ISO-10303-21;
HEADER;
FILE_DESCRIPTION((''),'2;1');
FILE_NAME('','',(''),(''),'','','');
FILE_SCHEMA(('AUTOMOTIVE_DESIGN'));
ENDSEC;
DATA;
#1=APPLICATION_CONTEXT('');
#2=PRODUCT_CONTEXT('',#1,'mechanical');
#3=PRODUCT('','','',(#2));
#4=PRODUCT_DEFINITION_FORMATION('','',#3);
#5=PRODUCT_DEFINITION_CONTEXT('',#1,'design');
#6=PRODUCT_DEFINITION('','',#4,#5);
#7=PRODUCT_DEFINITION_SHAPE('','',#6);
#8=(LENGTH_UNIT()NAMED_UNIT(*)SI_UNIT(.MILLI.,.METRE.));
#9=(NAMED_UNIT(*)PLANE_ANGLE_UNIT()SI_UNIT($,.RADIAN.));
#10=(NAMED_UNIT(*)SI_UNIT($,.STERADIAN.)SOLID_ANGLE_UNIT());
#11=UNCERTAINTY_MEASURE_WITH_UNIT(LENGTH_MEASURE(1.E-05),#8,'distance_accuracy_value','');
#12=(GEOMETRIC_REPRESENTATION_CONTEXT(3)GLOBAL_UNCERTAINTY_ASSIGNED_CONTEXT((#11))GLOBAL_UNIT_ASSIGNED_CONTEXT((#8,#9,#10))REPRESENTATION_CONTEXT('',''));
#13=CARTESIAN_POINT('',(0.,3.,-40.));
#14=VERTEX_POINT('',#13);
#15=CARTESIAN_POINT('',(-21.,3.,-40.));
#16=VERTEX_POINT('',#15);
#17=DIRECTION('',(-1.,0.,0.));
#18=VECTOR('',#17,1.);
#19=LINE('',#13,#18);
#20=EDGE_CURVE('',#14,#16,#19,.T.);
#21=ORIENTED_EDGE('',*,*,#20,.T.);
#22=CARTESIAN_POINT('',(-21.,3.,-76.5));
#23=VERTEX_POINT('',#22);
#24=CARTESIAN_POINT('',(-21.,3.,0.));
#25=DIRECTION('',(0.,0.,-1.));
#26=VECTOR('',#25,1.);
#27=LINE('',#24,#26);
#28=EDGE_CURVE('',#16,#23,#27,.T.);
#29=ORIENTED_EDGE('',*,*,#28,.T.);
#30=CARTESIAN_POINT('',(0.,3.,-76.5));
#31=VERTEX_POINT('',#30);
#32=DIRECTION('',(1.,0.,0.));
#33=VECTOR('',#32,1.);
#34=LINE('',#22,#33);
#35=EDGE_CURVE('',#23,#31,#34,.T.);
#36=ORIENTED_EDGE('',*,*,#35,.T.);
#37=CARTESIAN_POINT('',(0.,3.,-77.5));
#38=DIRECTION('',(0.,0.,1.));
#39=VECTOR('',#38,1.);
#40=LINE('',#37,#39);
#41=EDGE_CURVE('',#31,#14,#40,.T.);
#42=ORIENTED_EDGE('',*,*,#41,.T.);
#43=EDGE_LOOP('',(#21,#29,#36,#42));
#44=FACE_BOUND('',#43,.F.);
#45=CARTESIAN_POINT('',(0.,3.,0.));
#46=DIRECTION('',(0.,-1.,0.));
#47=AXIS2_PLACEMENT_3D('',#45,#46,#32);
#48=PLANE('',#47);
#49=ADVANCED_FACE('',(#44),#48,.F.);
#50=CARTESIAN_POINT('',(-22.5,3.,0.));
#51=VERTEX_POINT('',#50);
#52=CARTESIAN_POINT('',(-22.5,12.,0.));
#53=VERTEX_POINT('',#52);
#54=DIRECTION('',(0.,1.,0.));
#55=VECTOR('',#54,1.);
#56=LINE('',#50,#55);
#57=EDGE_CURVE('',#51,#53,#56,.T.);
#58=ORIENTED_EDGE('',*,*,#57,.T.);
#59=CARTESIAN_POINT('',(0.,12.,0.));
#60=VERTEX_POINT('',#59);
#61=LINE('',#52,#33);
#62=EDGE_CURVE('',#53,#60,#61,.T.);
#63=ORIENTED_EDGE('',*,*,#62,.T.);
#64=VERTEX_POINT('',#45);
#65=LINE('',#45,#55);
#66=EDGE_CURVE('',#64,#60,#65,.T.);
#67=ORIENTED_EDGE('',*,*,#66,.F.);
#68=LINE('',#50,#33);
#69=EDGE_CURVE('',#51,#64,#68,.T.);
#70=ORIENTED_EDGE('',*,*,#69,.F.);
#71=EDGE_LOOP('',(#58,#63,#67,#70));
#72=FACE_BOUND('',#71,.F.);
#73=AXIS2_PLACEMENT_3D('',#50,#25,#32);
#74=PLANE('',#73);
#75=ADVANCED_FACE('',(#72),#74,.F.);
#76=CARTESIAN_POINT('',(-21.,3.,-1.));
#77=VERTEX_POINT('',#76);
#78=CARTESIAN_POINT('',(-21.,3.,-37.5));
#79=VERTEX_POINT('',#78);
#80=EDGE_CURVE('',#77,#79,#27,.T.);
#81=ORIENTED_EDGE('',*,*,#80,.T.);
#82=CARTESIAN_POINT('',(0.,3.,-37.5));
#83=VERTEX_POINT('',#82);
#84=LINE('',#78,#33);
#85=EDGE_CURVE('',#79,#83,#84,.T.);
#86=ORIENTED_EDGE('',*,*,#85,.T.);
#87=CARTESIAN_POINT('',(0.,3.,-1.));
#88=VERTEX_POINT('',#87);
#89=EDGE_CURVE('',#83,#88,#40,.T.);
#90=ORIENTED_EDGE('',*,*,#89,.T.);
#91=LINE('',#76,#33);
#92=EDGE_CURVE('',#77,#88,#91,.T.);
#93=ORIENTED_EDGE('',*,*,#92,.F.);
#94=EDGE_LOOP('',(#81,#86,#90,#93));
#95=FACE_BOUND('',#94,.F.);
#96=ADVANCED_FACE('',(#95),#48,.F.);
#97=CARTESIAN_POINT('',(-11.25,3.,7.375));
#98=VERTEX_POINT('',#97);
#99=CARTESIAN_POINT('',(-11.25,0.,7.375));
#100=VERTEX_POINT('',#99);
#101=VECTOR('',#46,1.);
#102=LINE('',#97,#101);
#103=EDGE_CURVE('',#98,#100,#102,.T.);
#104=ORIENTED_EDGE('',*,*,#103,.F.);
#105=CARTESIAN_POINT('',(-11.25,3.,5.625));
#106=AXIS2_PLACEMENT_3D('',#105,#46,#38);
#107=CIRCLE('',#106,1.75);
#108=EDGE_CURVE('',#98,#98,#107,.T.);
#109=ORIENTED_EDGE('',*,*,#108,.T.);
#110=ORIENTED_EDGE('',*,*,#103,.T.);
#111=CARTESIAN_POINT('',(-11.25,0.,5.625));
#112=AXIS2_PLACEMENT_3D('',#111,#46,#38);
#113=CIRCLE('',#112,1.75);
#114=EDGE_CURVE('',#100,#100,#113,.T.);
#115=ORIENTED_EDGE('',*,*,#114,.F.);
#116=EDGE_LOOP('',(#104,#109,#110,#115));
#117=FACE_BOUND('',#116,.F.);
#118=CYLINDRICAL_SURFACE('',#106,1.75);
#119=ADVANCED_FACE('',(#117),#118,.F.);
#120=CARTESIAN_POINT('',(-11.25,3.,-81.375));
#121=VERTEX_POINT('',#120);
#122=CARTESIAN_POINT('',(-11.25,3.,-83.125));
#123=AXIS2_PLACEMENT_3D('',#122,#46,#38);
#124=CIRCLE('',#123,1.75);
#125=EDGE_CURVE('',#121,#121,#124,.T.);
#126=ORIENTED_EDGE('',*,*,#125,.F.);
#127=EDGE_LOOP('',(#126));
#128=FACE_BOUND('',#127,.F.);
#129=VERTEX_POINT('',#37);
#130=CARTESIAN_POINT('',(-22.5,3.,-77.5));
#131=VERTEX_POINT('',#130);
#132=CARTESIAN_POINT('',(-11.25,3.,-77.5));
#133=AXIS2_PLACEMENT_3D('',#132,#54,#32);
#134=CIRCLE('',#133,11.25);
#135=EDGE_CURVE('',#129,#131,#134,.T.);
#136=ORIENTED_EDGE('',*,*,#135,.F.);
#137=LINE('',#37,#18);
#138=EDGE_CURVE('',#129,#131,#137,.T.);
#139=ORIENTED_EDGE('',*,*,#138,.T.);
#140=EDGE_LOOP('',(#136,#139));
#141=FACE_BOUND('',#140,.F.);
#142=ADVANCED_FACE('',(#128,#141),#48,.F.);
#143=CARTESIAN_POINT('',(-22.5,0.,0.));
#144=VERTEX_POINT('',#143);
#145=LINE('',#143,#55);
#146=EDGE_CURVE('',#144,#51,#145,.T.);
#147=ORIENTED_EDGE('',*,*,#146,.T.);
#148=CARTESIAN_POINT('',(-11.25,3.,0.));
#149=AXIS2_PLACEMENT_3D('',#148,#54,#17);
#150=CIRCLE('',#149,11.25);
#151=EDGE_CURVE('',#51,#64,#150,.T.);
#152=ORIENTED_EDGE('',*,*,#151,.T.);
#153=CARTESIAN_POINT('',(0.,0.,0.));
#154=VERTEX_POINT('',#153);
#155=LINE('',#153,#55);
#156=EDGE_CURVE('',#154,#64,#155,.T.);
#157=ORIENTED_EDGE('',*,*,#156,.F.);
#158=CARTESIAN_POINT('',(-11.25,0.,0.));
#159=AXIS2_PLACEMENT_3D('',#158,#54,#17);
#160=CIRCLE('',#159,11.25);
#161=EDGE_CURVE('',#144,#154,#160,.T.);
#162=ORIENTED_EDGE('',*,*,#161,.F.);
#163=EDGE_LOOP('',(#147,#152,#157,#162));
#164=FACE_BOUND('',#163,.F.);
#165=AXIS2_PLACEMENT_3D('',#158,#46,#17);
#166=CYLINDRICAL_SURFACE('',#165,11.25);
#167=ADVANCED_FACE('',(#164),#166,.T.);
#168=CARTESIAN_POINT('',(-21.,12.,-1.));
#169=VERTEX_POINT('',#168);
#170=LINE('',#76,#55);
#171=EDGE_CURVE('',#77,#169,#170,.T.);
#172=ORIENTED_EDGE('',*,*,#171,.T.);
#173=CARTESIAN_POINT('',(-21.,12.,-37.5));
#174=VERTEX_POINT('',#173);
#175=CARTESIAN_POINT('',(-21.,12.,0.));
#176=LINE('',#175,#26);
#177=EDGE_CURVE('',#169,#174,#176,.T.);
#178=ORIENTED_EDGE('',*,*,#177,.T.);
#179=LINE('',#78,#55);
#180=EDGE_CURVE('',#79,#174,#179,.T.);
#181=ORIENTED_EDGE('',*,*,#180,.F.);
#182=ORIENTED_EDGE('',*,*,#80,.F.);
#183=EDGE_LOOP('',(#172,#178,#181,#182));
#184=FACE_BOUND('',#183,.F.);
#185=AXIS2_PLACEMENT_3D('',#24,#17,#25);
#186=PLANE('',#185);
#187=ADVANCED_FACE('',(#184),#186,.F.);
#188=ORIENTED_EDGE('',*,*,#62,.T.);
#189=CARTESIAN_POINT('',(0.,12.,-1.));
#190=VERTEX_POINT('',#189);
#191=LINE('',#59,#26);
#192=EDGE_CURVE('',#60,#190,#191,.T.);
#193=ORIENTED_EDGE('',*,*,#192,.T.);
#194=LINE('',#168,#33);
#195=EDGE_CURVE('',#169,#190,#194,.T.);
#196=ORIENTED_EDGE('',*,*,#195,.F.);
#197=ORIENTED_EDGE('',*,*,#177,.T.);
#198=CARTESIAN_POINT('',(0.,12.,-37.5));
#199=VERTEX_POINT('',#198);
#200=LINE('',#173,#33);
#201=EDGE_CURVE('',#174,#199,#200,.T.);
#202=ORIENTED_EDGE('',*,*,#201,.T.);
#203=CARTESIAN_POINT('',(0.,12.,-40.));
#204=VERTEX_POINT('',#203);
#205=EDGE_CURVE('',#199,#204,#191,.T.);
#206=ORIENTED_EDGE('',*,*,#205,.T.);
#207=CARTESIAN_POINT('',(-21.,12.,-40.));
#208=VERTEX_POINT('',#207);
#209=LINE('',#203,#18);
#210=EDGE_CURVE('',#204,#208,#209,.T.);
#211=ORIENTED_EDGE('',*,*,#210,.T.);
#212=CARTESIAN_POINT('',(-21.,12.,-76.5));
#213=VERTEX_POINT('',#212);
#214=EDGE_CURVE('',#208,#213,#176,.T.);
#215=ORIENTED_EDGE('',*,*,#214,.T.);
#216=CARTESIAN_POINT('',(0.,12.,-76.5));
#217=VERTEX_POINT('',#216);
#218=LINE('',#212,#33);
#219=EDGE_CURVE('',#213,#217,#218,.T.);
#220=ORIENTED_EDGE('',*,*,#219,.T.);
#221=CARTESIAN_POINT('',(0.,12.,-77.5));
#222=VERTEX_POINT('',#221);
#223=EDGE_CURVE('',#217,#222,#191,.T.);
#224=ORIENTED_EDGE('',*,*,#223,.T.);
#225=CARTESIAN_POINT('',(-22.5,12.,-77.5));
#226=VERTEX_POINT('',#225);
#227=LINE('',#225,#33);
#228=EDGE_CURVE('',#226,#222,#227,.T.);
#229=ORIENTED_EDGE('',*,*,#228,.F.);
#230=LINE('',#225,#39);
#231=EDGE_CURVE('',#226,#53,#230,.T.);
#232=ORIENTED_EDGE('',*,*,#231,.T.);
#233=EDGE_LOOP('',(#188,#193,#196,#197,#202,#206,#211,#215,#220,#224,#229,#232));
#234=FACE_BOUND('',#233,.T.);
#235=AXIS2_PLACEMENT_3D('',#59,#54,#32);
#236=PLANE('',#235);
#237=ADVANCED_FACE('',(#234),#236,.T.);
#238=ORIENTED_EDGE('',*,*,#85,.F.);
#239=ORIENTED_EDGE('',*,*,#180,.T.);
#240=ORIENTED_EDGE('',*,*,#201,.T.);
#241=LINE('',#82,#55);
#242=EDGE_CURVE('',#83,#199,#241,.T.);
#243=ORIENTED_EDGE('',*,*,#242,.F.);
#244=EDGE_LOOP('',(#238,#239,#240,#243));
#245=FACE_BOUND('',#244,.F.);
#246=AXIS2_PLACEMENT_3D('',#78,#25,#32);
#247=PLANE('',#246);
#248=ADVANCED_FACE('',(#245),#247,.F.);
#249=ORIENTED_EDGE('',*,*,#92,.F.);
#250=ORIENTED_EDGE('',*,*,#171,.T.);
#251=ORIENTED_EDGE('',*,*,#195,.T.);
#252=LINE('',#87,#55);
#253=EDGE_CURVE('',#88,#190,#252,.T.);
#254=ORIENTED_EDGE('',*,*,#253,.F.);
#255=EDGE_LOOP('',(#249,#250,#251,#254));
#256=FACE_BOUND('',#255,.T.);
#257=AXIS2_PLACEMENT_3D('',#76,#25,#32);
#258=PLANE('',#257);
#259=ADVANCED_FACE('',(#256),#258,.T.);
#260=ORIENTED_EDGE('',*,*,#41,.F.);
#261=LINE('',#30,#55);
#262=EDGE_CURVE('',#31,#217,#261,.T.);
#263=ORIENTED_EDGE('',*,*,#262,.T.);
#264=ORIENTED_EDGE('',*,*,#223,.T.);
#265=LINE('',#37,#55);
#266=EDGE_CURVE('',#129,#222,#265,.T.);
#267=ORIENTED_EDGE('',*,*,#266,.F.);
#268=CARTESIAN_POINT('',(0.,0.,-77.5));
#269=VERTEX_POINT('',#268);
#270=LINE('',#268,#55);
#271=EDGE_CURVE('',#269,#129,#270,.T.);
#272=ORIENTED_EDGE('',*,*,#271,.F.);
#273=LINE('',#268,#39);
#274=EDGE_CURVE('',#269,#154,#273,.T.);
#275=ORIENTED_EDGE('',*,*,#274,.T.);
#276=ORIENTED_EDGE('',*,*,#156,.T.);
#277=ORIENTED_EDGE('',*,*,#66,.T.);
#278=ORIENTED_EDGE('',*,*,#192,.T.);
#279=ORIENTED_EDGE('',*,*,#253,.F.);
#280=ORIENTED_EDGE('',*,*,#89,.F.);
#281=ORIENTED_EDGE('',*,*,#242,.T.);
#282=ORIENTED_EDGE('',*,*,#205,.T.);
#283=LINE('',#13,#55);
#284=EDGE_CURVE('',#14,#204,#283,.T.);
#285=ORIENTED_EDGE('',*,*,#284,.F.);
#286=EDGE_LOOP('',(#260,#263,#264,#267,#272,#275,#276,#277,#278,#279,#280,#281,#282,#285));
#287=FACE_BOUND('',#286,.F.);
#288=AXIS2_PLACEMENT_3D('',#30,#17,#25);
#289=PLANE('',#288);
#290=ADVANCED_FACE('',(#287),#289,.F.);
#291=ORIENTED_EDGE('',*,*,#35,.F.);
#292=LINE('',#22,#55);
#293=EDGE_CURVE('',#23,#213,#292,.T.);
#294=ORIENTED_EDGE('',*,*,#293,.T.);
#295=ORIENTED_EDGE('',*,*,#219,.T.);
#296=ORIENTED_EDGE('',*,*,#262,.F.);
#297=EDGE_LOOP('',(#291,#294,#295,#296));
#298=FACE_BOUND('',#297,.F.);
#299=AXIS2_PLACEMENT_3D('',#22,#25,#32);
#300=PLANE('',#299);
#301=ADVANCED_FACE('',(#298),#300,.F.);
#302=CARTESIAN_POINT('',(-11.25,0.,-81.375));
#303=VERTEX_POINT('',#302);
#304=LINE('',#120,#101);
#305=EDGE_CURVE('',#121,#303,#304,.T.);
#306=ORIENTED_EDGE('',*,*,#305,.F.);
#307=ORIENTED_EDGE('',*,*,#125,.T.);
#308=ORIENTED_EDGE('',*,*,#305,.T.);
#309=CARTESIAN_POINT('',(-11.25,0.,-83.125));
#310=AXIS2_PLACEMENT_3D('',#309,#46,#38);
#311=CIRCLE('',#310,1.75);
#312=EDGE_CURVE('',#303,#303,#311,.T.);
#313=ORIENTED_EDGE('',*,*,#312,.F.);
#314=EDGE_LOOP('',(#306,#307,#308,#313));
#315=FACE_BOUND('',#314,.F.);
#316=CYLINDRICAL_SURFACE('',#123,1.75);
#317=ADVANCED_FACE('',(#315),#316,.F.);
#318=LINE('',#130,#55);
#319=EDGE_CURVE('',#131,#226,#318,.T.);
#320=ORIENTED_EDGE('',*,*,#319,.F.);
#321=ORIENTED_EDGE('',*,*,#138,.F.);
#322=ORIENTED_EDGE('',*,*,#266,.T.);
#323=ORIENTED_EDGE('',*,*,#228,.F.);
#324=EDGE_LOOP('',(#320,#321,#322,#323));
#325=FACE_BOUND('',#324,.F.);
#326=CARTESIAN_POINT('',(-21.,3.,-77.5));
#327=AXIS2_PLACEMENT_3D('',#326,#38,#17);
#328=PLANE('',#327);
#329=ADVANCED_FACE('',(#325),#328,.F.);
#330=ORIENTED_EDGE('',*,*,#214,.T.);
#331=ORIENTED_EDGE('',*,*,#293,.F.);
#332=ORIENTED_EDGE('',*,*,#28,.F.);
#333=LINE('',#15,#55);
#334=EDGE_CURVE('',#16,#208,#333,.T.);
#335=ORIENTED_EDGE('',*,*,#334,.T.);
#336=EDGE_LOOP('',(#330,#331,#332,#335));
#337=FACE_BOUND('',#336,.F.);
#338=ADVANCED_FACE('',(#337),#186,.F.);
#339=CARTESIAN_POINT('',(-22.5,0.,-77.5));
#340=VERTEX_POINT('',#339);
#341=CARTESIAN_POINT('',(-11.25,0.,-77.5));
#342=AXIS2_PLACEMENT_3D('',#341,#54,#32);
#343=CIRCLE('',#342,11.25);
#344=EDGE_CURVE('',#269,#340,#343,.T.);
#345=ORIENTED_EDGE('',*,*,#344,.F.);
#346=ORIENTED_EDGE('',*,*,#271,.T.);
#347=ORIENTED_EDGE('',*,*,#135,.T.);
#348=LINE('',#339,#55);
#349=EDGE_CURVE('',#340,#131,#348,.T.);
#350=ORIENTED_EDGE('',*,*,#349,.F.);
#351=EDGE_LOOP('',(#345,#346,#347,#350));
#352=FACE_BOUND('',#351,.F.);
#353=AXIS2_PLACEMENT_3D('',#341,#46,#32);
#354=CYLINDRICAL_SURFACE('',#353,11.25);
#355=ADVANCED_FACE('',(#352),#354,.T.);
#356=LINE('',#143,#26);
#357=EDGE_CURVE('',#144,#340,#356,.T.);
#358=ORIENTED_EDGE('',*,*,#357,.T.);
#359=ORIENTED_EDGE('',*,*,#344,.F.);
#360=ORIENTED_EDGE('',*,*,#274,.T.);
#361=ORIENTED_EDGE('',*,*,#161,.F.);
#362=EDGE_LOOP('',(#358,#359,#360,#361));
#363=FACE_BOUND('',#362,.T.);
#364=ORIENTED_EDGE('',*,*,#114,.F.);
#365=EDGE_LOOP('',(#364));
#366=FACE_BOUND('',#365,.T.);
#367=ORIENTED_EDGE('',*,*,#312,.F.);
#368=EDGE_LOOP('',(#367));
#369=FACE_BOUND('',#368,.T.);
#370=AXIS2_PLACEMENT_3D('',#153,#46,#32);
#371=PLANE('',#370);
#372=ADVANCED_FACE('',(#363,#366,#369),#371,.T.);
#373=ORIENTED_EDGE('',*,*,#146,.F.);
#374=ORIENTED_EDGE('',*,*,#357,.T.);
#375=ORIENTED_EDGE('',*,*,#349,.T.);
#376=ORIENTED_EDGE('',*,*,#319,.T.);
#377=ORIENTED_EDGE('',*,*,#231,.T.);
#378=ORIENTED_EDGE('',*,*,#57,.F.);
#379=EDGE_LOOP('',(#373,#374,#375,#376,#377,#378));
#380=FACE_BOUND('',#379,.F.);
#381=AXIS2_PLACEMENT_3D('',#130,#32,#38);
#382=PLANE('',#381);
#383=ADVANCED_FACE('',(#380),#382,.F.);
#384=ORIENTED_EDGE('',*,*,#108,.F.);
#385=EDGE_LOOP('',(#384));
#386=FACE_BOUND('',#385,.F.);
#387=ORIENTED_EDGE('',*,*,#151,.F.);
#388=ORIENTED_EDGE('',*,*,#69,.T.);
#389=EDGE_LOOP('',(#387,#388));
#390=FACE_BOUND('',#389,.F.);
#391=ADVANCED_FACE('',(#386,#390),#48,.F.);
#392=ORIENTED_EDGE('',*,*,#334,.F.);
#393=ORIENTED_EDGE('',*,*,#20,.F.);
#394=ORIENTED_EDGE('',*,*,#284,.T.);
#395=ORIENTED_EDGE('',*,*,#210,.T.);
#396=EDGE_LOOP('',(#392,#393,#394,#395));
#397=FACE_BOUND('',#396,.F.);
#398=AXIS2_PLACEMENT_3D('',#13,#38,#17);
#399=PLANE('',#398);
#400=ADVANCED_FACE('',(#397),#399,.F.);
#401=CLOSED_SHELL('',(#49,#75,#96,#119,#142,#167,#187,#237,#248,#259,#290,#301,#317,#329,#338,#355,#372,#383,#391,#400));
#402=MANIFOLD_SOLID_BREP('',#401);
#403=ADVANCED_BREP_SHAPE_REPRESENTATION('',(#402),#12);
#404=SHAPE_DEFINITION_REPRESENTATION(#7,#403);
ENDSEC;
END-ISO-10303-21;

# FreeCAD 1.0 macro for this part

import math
import FreeCAD as App
import Part
import Sketcher
from FreeCAD import Vector


def add_polygon(sketch, points):
    """Adds a closed chain of lines whose ends are joined by coincident constraints."""
    first, n = sketch.GeometryCount, len(points)
    for a, b in zip(points, points[1:] + points[:1]):
        sketch.addGeometry(Part.LineSegment(App.Vector(*a, 0), App.Vector(*b, 0)), False)
    for i in range(n):
        sketch.addConstraint(Sketcher.Constraint("Coincident", first + i, 2, first + (i + 1) % n, 1))

doc = App.newDocument("Part")
body = doc.addObject("PartDesign::Body", "Body")
body.AllowCompound = True

# Sketch on XZ plane
sketch1 = body.newObject("Sketcher::SketchObject", "Sketch")
sketch1.AttachmentSupport = (doc.getObject("XZ_Plane"), [""])
sketch1.MapMode = "FlatFace"
sketch1.addGeometry([
    Part.ArcOfCircle(Part.Circle(Vector(-11, 0, 0), Vector(0, 0, 1), 11), math.radians(0), math.radians(180)),
    Part.LineSegment(Vector(0, 0, 0), Vector(-22, 0, 0)),
    Part.LineSegment(Vector(-22, -78, 0), Vector(0, -78, 0)),
    Part.ArcOfCircle(Part.Circle(Vector(-11, -78, 0), Vector(0, 0, 1), 11), math.radians(180), math.radians(360)),
], False)
sketch1.addConstraint([
    Sketcher.Constraint("Coincident", 0, 1, 1, 1),
    Sketcher.Constraint("Coincident", 1, 2, 0, 2),
    Sketcher.Constraint("Coincident", 2, 1, 3, 1),
    Sketcher.Constraint("Coincident", 3, 2, 2, 2),
    Sketcher.Constraint("Horizontal", 1),
    Sketcher.Constraint("Horizontal", 2),
    Sketcher.Constraint("Coincident", 0, 1, -1, 1),
    Sketcher.Constraint("Equal", 0, 3),
    Sketcher.Constraint("PointOnObject", 0, 3, -1),
    Sketcher.Constraint("PointOnObject", 3, 2, -2),
    Sketcher.Constraint("Horizontal", 3, 3, 2, 1),
    Sketcher.Constraint("Radius", 0, 11.25),
    Sketcher.Constraint("DistanceY", 3, 3, -1, 1, 77.5),
])
pad1 = body.newObject("PartDesign::Pad", "Pad")
pad1.Profile = sketch1
pad1.Length = 3
pad1.Reversed = True

# Sketch on XZ plane
sketch2 = body.newObject("Sketcher::SketchObject", "Sketch001")
sketch2.AttachmentSupport = (doc.getObject("XZ_Plane"), [""])
sketch2.MapMode = "FlatFace"
add_polygon(sketch2, [(0, -78), (0, 0), (-22, 0), (-22, -78)])  # lines 0-3
sketch2.addConstraint([
    Sketcher.Constraint("Vertical", 0),
    Sketcher.Constraint("Horizontal", 1),
    Sketcher.Constraint("Vertical", 2),
    Sketcher.Constraint("Horizontal", 3),
    Sketcher.Constraint("Coincident", 0, 2, -1, 1),
    Sketcher.Constraint("DistanceX", 1, 2, 1, 1, 22.5),
    Sketcher.Constraint("DistanceY", 0, 1, 0, 2, 77.5),
])
pad2 = body.newObject("PartDesign::Pad", "Pad001")
pad2.Profile = sketch2
pad2.Length = 3
pad2.Reversed = True

# Sketch on XZ plane
sketch3 = body.newObject("Sketcher::SketchObject", "Sketch002")
sketch3.AttachmentSupport = (doc.getObject("XZ_Plane"), [""])
sketch3.MapMode = "FlatFace"
sketch3.AttachmentOffset = App.Placement(Vector(0, 0, -3), App.Rotation())
add_polygon(sketch3, [(-21, -77.5), (-22.5, -77.5), (-22.5, 0), (-21, 0)])  # lines 0-3
sketch3.addConstraint([
    Sketcher.Constraint("Horizontal", 0),
    Sketcher.Constraint("Vertical", 1),
    Sketcher.Constraint("Horizontal", 2),
    Sketcher.Constraint("Vertical", 3),
    Sketcher.Constraint("PointOnObject", 1, 2, -1),
    Sketcher.Constraint("DistanceX", 0, 2, 0, 1, 1.5),
    Sketcher.Constraint("DistanceY", 1, 1, 1, 2, 77.5),
    Sketcher.Constraint("DistanceX", 2, 2, -1, 1, 21.0),
])
pad3 = body.newObject("PartDesign::Pad", "Pad002")
pad3.Profile = sketch3
pad3.Length = 9
pad3.Reversed = True

# Sketch on XZ plane
sketch4 = body.newObject("Sketcher::SketchObject", "Sketch003")
sketch4.AttachmentSupport = (doc.getObject("XZ_Plane"), [""])
sketch4.MapMode = "FlatFace"
sketch4.AttachmentOffset = App.Placement(Vector(0, 0, -3), App.Rotation())
add_polygon(sketch4, [(-21, 0), (0, 0), (0, -1), (-21, -1)])  # lines 0-3
add_polygon(sketch4, [(-21, -37.5), (0, -37.5), (0, -40), (-21, -40)])  # lines 4-7
add_polygon(sketch4, [(-21, -76.5), (0, -76.5), (0, -77.5), (-21, -77.5)])  # lines 8-11
sketch4.addConstraint([
    Sketcher.Constraint("Horizontal", 0),
    Sketcher.Constraint("Vertical", 1),
    Sketcher.Constraint("Horizontal", 2),
    Sketcher.Constraint("Vertical", 3),
    Sketcher.Constraint("Horizontal", 4),
    Sketcher.Constraint("Vertical", 5),
    Sketcher.Constraint("Horizontal", 6),
    Sketcher.Constraint("Vertical", 7),
    Sketcher.Constraint("Horizontal", 8),
    Sketcher.Constraint("Vertical", 9),
    Sketcher.Constraint("Horizontal", 10),
    Sketcher.Constraint("Vertical", 11),
    Sketcher.Constraint("Coincident", 0, 2, -1, 1),
    Sketcher.Constraint("PointOnObject", 4, 2, -2),
    Sketcher.Constraint("PointOnObject", 8, 2, -2),
    Sketcher.Constraint("Vertical", 3, 2, 6, 2),
    Sketcher.Constraint("Vertical", 7, 2, 10, 2),
    Sketcher.Constraint("Equal", 3, 9),
    Sketcher.Constraint("DistanceY", 1, 2, 1, 1, 1.0),
    Sketcher.Constraint("DistanceY", 5, 2, 5, 1, 2.5),
    Sketcher.Constraint("DistanceY", 4, 2, 1, 2, 36.5),
    Sketcher.Constraint("DistanceY", 8, 2, 5, 2, 36.5),
    Sketcher.Constraint("DistanceX", 0, 1, 0, 2, 21.0),
])
pad4 = body.newObject("PartDesign::Pad", "Pad003")
pad4.Profile = sketch4
pad4.Length = 9
pad4.Reversed = True

# Sketch on XZ plane
sketch5 = body.newObject("Sketcher::SketchObject", "Sketch004")
sketch5.AttachmentSupport = (doc.getObject("XZ_Plane"), [""])
sketch5.MapMode = "FlatFace"
sketch5.AttachmentOffset = App.Placement(Vector(0, 0, -3), App.Rotation())
sketch5.addGeometry([
    Part.Circle(Vector(-11.2, -83.1, 0), Vector(0, 0, 1), 1.8),
    Part.Circle(Vector(-11.2, 5.6, 0), Vector(0, 0, 1), 1.8),
], False)
sketch5.addConstraint([
    Sketcher.Constraint("Equal", 0, 1),
    Sketcher.Constraint("Vertical", 0, 3, 1, 3),
    Sketcher.Constraint("Diameter", 0, 3.5),
    Sketcher.Constraint("DistanceX", 0, 3, -1, 1, 11.25),
    Sketcher.Constraint("DistanceY", 0, 3, 1, 3, 88.75),
    Sketcher.Constraint("DistanceY", 0, 3, -1, 1, 83.125),
])
doc.recompute()
hole = body.newObject("PartDesign::Hole", "Hole")
hole.Profile = sketch5
hole.ThreadType = "None"
hole.Diameter = 3.5
hole.DepthType = "ThroughAll"
hole.Reversed = True

doc.recompute()
